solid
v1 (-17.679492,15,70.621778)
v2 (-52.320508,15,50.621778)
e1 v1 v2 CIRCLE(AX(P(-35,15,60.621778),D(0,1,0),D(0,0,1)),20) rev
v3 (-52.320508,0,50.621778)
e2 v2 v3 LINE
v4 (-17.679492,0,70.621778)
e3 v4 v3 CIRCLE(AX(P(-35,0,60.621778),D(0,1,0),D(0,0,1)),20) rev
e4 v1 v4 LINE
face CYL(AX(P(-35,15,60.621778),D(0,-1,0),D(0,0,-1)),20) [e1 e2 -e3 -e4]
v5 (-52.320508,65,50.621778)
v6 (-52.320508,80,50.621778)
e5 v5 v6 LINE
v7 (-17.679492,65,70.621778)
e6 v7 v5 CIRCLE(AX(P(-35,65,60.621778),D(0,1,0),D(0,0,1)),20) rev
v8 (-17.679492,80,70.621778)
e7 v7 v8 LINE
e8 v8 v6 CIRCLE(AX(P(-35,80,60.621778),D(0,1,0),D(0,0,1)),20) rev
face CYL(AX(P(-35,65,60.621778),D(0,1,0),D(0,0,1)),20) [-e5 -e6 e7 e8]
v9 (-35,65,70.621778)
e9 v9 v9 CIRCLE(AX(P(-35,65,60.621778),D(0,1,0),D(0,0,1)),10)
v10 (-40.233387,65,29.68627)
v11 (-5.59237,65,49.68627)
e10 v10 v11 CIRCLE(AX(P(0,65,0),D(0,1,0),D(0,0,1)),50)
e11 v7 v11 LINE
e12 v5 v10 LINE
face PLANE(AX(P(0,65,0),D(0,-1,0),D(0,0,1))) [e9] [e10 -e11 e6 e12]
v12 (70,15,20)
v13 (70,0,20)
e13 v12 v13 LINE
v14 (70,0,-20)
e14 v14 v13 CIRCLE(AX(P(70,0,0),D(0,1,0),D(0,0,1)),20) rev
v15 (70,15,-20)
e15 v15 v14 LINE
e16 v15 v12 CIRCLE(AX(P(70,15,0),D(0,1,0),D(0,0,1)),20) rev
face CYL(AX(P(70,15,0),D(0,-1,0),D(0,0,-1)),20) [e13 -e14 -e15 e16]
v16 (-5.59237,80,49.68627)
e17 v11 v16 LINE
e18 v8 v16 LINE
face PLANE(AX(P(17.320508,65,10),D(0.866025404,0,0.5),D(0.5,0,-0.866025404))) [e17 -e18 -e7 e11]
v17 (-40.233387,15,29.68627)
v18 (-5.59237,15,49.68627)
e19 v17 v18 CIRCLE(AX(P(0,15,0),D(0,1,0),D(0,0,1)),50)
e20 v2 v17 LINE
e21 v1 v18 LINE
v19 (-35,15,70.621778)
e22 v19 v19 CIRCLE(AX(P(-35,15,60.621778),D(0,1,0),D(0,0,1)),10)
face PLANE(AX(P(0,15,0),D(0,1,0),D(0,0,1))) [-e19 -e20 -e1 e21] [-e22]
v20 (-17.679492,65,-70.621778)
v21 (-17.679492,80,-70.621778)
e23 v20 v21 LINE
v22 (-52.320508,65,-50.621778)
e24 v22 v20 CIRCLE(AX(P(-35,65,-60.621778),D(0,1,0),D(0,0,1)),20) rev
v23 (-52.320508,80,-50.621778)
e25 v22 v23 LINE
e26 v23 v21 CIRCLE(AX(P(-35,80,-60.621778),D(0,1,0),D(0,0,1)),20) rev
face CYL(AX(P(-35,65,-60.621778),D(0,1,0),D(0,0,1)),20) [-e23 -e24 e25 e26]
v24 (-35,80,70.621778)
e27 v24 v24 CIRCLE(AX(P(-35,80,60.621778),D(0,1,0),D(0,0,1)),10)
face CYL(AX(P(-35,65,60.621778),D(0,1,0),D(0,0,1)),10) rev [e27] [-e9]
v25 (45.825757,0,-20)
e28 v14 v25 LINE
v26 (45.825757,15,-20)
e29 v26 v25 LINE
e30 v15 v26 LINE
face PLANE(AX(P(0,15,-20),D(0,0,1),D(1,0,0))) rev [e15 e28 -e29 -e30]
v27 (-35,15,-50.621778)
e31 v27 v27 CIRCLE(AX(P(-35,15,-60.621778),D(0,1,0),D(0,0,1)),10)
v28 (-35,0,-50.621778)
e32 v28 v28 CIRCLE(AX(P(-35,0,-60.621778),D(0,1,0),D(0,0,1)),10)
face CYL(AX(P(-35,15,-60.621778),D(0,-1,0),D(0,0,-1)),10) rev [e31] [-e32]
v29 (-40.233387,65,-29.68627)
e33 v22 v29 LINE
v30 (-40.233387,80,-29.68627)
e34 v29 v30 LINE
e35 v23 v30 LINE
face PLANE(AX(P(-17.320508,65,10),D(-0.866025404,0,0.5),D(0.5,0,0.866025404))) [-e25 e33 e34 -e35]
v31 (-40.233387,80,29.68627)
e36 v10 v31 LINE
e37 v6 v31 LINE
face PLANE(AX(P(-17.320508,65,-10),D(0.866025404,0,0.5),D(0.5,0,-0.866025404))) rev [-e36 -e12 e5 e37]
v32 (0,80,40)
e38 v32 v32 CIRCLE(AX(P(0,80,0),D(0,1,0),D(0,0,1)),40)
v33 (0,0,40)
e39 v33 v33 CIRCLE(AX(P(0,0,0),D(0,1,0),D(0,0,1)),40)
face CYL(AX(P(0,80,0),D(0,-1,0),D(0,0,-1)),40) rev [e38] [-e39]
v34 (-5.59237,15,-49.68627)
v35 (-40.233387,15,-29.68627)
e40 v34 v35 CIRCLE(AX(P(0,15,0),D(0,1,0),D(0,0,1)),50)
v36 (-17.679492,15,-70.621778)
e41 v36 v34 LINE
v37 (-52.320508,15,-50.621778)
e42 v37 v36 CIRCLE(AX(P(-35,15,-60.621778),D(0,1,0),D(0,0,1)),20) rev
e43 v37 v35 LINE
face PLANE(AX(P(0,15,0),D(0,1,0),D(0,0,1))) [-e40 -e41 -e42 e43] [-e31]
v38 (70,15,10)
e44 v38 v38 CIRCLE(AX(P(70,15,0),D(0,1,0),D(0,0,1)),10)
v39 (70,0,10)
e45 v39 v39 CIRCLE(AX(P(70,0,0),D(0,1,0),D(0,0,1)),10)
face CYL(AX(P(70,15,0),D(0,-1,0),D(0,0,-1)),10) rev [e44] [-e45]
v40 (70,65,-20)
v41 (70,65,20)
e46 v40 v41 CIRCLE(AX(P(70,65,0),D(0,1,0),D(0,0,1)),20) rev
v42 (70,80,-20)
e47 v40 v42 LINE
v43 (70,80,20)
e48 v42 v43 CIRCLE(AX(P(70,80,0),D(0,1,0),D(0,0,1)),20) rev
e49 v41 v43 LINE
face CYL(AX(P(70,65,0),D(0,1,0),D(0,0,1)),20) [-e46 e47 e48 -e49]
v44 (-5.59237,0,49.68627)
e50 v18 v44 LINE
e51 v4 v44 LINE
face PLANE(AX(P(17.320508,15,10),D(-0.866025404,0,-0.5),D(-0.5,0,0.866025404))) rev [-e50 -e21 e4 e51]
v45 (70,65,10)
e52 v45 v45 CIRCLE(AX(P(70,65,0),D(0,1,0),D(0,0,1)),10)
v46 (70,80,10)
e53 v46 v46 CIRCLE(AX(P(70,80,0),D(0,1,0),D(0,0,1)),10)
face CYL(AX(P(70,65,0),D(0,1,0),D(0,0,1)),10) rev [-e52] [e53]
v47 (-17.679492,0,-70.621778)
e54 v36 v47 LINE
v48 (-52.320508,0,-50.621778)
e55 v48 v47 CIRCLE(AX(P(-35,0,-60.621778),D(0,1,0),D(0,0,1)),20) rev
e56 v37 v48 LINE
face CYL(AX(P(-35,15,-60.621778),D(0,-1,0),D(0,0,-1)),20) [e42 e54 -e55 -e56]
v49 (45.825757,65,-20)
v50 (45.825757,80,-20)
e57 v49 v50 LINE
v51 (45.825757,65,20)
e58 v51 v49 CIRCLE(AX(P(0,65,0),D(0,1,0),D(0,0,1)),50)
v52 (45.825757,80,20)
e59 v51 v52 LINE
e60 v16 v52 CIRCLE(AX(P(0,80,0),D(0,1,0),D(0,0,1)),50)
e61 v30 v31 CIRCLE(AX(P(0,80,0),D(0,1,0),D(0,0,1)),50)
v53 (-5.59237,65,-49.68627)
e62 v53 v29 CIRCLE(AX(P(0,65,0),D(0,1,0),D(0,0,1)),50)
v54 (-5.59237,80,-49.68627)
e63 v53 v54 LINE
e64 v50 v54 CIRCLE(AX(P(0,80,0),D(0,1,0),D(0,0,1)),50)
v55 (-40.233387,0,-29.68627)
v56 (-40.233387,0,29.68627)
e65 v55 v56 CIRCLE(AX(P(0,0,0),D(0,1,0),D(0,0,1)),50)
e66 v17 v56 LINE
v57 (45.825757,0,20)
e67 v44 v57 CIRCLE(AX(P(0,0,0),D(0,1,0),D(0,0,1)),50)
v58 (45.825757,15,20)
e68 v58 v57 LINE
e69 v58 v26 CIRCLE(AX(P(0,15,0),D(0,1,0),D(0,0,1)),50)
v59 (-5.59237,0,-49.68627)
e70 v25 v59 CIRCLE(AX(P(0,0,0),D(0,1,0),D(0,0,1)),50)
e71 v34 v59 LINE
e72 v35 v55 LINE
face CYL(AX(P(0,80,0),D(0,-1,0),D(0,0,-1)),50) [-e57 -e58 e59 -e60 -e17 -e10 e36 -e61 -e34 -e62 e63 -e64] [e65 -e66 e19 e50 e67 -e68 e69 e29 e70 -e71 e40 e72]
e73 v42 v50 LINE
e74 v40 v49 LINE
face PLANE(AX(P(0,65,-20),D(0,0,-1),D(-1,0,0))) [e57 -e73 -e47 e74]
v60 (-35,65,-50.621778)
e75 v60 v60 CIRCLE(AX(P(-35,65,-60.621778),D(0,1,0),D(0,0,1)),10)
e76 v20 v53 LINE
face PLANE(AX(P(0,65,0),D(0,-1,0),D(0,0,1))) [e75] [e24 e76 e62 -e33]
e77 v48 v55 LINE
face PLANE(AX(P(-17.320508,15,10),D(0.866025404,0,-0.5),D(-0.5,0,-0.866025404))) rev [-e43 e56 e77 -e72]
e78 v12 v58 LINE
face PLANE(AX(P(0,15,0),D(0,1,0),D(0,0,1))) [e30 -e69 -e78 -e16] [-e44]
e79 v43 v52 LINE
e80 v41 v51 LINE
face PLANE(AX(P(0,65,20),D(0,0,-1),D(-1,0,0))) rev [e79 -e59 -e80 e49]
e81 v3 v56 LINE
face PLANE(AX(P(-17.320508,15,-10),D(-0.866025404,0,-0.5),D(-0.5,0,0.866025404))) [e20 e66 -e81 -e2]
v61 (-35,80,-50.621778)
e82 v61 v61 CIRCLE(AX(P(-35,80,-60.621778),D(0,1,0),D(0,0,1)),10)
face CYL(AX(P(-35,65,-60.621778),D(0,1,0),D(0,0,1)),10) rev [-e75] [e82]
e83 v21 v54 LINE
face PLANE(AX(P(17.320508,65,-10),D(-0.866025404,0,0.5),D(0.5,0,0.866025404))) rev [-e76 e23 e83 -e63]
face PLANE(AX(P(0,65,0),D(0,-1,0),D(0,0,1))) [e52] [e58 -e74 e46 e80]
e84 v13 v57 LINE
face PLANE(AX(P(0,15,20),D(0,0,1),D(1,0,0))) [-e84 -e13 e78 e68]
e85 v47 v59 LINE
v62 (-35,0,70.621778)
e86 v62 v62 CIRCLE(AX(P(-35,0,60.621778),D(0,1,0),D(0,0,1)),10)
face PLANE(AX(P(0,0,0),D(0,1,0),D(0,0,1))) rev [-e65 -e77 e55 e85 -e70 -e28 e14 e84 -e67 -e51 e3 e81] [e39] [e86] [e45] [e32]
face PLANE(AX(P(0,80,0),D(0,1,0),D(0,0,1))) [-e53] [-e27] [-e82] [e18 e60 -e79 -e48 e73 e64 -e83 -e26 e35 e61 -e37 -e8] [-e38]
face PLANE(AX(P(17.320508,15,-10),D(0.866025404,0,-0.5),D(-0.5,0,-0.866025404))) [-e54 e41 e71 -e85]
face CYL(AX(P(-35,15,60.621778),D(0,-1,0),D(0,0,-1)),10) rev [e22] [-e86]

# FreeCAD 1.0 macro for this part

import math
import FreeCAD as App
import Part
import Sketcher
Q = App.Units.Quantity

doc = App.newDocument("Part")
body = doc.addObject("PartDesign::Body", "Body")

# Sketch on XZ plane
sketch1 = body.newObject("Sketcher::SketchObject", "Sketch")
sketch1.AttachmentSupport = (doc.getObject("XZ_Plane"), [""])
sketch1.MapMode = "FlatFace"
sketch1.addGeometry(Part.Circle(App.Vector(0, 0, 0), App.Vector(0, 0, 1), 50), False)
sketch1.addGeometry(Part.Circle(App.Vector(0, 0, 0), App.Vector(0, 0, 1), 40), False)
sketch1.addConstraint(Sketcher.Constraint("Coincident", 0, 3, -1, 1))
sketch1.addConstraint(Sketcher.Constraint("Coincident", 1, 3, -1, 1))
sketch1.addConstraint(Sketcher.Constraint("Diameter", 0, 100.0))
sketch1.addConstraint(Sketcher.Constraint("Diameter", 1, 80.0))
pad1 = body.newObject("PartDesign::Pad", "Pad")
pad1.Profile = sketch1
pad1.Length = 80
pad1.Reversed = True

# Sketch on XZ plane
sketch2 = body.newObject("Sketcher::SketchObject", "Sketch001")
sketch2.AttachmentSupport = (doc.getObject("XZ_Plane"), [""])
sketch2.MapMode = "FlatFace"
sketch2.addGeometry(Part.LineSegment(App.Vector(-17.679492, 70.621778, 0), App.Vector(-5.59237, 49.68627, 0)), False)
sketch2.addGeometry(Part.ArcOfCircle(Part.Circle(App.Vector(0, 0, 0), App.Vector(0, 0, 1), 50), math.radians(96.421822), math.radians(143.578178)), False)
sketch2.addGeometry(Part.LineSegment(App.Vector(-40.233387, 29.68627, 0), App.Vector(-52.320508, 50.621778, 0)), False)
sketch2.addGeometry(Part.ArcOfCircle(Part.Circle(App.Vector(-35, 60.621778, 0), App.Vector(0, 0, 1), 20), math.radians(30), math.radians(210)), False)
sketch2.addGeometry(Part.Circle(App.Vector(-35, 60.621778, 0), App.Vector(0, 0, 1), 10), False)
sketch2.addGeometry(Part.ArcOfCircle(Part.Circle(App.Vector(0, 0, 0), App.Vector(0, 0, 1), 50), math.radians(-143.578178), math.radians(-96.421822)), False)
sketch2.addGeometry(Part.LineSegment(App.Vector(-5.59237, -49.68627, 0), App.Vector(-17.679492, -70.621778, 0)), False)
sketch2.addGeometry(Part.ArcOfCircle(Part.Circle(App.Vector(-35, -60.621778, 0), App.Vector(0, 0, 1), 20), math.radians(150), math.radians(330)), False)
sketch2.addGeometry(Part.LineSegment(App.Vector(-52.320508, -50.621778, 0), App.Vector(-40.233387, -29.68627, 0)), False)
sketch2.addGeometry(Part.Circle(App.Vector(-35, -60.621778, 0), App.Vector(0, 0, 1), 10), False)
sketch2.addGeometry(Part.ArcOfCircle(Part.Circle(App.Vector(70, 0, 0), App.Vector(0, 0, 1), 20), math.radians(-90), math.radians(90)), False)
sketch2.addGeometry(Part.LineSegment(App.Vector(70, -20, 0), App.Vector(45.825757, -20, 0)), False)
sketch2.addGeometry(Part.ArcOfCircle(Part.Circle(App.Vector(0, 0, 0), App.Vector(0, 0, 1), 50), math.radians(-23.578178), math.radians(0)), False)
sketch2.addGeometry(Part.ArcOfCircle(Part.Circle(App.Vector(0, 0, 0), App.Vector(0, 0, 1), 50), math.radians(0), math.radians(23.578178)), False)
sketch2.addGeometry(Part.LineSegment(App.Vector(45.825757, 20, 0), App.Vector(70, 20, 0)), False)
sketch2.addGeometry(Part.Circle(App.Vector(70, 0, 0), App.Vector(0, 0, 1), 10), False)
sketch2.addConstraint(Sketcher.Constraint("Coincident", 0, 2, 1, 1))
sketch2.addConstraint(Sketcher.Constraint("Coincident", 1, 2, 2, 1))
sketch2.addConstraint(Sketcher.Constraint("Tangent", 2, 2, 3, 2))
sketch2.addConstraint(Sketcher.Constraint("Tangent", 3, 1, 0, 1))
sketch2.addConstraint(Sketcher.Constraint("Coincident", 5, 2, 6, 1))
sketch2.addConstraint(Sketcher.Constraint("Tangent", 6, 2, 7, 2))
sketch2.addConstraint(Sketcher.Constraint("Tangent", 7, 1, 8, 1))
sketch2.addConstraint(Sketcher.Constraint("Coincident", 8, 2, 5, 1))
sketch2.addConstraint(Sketcher.Constraint("Tangent", 10, 1, 11, 1))
sketch2.addConstraint(Sketcher.Constraint("Coincident", 11, 2, 12, 1))
sketch2.addConstraint(Sketcher.Constraint("Tangent", 12, 2, 13, 1))
sketch2.addConstraint(Sketcher.Constraint("Coincident", 13, 2, 14, 1))
sketch2.addConstraint(Sketcher.Constraint("Tangent", 14, 2, 10, 2))
sketch2.addConstraint(Sketcher.Constraint("Horizontal", 11))
sketch2.addConstraint(Sketcher.Constraint("Horizontal", 14))
sketch2.addConstraint(Sketcher.Constraint("Coincident", 1, 3, -1, 1))
sketch2.addConstraint(Sketcher.Constraint("Coincident", 5, 3, -1, 1))
sketch2.addConstraint(Sketcher.Constraint("Coincident", 12, 3, -1, 1))
sketch2.addConstraint(Sketcher.Constraint("Coincident", 4, 3, 3, 3))
sketch2.addConstraint(Sketcher.Constraint("Coincident", 9, 3, 7, 3))
sketch2.addConstraint(Sketcher.Constraint("Coincident", 15, 3, 10, 3))
sketch2.addConstraint(Sketcher.Constraint("Equal", 1, 5))
sketch2.addConstraint(Sketcher.Constraint("Equal", 3, 7))
sketch2.addConstraint(Sketcher.Constraint("Equal", 4, 9))
sketch2.addConstraint(Sketcher.Constraint("Equal", 7, 10))
sketch2.addConstraint(Sketcher.Constraint("Equal", 5, 12))
sketch2.addConstraint(Sketcher.Constraint("Equal", 12, 13))
sketch2.addConstraint(Sketcher.Constraint("Equal", 9, 15))
sketch2.addConstraint(Sketcher.Constraint("Symmetric", 3, 3, 7, 3, -1))
sketch2.addConstraint(Sketcher.Constraint("PointOnObject", 10, 3, -1))
sketch2.addConstraint(Sketcher.Constraint("PointOnObject", 12, 2, -1))
sketch2.addConstraint(Sketcher.Constraint("Parallel", 0, 2))
sketch2.addConstraint(Sketcher.Constraint("Parallel", 6, 8))
sketch2.addConstraint(Sketcher.Constraint("Vertical", 0, 2, 5, 2))
sketch2.addConstraint(Sketcher.Constraint("Equal", 0, 2))
sketch2.addConstraint(Sketcher.Constraint("Diameter", 4, 20.0))
sketch2.addConstraint(Sketcher.Constraint("Radius", 1, 50.0))
sketch2.addConstraint(Sketcher.Constraint("Radius", 3, 20.0))
sketch2.addConstraint(Sketcher.Constraint("Angle", 0, Q("-60 deg")))
sketch2.addConstraint(Sketcher.Constraint("DistanceX", 3, 3, -1, 1, 35.0))
sketch2.addConstraint(Sketcher.Constraint("DistanceX", -1, 1, 10, 3, 70.0))
pad2 = body.newObject("PartDesign::Pad", "Pad001")
pad2.Profile = sketch2
pad2.Length = 15
pad2.Reversed = True
doc.recompute()

datumplane = body.newObject("PartDesign::Plane", "DatumPlane")
datumplane.AttachmentSupport = (doc.getObject("XZ_Plane"), [""])
datumplane.MapMode = "FlatFace"
datumplane.AttachmentOffset = App.Placement(App.Vector(0, 0, -40), App.Rotation())
mirrored = body.newObject("PartDesign::Mirrored", "Mirrored")
mirrored.Originals = [pad2]
mirrored.MirrorPlane = (datumplane, [""])
body.Tip = mirrored

doc.recompute()
